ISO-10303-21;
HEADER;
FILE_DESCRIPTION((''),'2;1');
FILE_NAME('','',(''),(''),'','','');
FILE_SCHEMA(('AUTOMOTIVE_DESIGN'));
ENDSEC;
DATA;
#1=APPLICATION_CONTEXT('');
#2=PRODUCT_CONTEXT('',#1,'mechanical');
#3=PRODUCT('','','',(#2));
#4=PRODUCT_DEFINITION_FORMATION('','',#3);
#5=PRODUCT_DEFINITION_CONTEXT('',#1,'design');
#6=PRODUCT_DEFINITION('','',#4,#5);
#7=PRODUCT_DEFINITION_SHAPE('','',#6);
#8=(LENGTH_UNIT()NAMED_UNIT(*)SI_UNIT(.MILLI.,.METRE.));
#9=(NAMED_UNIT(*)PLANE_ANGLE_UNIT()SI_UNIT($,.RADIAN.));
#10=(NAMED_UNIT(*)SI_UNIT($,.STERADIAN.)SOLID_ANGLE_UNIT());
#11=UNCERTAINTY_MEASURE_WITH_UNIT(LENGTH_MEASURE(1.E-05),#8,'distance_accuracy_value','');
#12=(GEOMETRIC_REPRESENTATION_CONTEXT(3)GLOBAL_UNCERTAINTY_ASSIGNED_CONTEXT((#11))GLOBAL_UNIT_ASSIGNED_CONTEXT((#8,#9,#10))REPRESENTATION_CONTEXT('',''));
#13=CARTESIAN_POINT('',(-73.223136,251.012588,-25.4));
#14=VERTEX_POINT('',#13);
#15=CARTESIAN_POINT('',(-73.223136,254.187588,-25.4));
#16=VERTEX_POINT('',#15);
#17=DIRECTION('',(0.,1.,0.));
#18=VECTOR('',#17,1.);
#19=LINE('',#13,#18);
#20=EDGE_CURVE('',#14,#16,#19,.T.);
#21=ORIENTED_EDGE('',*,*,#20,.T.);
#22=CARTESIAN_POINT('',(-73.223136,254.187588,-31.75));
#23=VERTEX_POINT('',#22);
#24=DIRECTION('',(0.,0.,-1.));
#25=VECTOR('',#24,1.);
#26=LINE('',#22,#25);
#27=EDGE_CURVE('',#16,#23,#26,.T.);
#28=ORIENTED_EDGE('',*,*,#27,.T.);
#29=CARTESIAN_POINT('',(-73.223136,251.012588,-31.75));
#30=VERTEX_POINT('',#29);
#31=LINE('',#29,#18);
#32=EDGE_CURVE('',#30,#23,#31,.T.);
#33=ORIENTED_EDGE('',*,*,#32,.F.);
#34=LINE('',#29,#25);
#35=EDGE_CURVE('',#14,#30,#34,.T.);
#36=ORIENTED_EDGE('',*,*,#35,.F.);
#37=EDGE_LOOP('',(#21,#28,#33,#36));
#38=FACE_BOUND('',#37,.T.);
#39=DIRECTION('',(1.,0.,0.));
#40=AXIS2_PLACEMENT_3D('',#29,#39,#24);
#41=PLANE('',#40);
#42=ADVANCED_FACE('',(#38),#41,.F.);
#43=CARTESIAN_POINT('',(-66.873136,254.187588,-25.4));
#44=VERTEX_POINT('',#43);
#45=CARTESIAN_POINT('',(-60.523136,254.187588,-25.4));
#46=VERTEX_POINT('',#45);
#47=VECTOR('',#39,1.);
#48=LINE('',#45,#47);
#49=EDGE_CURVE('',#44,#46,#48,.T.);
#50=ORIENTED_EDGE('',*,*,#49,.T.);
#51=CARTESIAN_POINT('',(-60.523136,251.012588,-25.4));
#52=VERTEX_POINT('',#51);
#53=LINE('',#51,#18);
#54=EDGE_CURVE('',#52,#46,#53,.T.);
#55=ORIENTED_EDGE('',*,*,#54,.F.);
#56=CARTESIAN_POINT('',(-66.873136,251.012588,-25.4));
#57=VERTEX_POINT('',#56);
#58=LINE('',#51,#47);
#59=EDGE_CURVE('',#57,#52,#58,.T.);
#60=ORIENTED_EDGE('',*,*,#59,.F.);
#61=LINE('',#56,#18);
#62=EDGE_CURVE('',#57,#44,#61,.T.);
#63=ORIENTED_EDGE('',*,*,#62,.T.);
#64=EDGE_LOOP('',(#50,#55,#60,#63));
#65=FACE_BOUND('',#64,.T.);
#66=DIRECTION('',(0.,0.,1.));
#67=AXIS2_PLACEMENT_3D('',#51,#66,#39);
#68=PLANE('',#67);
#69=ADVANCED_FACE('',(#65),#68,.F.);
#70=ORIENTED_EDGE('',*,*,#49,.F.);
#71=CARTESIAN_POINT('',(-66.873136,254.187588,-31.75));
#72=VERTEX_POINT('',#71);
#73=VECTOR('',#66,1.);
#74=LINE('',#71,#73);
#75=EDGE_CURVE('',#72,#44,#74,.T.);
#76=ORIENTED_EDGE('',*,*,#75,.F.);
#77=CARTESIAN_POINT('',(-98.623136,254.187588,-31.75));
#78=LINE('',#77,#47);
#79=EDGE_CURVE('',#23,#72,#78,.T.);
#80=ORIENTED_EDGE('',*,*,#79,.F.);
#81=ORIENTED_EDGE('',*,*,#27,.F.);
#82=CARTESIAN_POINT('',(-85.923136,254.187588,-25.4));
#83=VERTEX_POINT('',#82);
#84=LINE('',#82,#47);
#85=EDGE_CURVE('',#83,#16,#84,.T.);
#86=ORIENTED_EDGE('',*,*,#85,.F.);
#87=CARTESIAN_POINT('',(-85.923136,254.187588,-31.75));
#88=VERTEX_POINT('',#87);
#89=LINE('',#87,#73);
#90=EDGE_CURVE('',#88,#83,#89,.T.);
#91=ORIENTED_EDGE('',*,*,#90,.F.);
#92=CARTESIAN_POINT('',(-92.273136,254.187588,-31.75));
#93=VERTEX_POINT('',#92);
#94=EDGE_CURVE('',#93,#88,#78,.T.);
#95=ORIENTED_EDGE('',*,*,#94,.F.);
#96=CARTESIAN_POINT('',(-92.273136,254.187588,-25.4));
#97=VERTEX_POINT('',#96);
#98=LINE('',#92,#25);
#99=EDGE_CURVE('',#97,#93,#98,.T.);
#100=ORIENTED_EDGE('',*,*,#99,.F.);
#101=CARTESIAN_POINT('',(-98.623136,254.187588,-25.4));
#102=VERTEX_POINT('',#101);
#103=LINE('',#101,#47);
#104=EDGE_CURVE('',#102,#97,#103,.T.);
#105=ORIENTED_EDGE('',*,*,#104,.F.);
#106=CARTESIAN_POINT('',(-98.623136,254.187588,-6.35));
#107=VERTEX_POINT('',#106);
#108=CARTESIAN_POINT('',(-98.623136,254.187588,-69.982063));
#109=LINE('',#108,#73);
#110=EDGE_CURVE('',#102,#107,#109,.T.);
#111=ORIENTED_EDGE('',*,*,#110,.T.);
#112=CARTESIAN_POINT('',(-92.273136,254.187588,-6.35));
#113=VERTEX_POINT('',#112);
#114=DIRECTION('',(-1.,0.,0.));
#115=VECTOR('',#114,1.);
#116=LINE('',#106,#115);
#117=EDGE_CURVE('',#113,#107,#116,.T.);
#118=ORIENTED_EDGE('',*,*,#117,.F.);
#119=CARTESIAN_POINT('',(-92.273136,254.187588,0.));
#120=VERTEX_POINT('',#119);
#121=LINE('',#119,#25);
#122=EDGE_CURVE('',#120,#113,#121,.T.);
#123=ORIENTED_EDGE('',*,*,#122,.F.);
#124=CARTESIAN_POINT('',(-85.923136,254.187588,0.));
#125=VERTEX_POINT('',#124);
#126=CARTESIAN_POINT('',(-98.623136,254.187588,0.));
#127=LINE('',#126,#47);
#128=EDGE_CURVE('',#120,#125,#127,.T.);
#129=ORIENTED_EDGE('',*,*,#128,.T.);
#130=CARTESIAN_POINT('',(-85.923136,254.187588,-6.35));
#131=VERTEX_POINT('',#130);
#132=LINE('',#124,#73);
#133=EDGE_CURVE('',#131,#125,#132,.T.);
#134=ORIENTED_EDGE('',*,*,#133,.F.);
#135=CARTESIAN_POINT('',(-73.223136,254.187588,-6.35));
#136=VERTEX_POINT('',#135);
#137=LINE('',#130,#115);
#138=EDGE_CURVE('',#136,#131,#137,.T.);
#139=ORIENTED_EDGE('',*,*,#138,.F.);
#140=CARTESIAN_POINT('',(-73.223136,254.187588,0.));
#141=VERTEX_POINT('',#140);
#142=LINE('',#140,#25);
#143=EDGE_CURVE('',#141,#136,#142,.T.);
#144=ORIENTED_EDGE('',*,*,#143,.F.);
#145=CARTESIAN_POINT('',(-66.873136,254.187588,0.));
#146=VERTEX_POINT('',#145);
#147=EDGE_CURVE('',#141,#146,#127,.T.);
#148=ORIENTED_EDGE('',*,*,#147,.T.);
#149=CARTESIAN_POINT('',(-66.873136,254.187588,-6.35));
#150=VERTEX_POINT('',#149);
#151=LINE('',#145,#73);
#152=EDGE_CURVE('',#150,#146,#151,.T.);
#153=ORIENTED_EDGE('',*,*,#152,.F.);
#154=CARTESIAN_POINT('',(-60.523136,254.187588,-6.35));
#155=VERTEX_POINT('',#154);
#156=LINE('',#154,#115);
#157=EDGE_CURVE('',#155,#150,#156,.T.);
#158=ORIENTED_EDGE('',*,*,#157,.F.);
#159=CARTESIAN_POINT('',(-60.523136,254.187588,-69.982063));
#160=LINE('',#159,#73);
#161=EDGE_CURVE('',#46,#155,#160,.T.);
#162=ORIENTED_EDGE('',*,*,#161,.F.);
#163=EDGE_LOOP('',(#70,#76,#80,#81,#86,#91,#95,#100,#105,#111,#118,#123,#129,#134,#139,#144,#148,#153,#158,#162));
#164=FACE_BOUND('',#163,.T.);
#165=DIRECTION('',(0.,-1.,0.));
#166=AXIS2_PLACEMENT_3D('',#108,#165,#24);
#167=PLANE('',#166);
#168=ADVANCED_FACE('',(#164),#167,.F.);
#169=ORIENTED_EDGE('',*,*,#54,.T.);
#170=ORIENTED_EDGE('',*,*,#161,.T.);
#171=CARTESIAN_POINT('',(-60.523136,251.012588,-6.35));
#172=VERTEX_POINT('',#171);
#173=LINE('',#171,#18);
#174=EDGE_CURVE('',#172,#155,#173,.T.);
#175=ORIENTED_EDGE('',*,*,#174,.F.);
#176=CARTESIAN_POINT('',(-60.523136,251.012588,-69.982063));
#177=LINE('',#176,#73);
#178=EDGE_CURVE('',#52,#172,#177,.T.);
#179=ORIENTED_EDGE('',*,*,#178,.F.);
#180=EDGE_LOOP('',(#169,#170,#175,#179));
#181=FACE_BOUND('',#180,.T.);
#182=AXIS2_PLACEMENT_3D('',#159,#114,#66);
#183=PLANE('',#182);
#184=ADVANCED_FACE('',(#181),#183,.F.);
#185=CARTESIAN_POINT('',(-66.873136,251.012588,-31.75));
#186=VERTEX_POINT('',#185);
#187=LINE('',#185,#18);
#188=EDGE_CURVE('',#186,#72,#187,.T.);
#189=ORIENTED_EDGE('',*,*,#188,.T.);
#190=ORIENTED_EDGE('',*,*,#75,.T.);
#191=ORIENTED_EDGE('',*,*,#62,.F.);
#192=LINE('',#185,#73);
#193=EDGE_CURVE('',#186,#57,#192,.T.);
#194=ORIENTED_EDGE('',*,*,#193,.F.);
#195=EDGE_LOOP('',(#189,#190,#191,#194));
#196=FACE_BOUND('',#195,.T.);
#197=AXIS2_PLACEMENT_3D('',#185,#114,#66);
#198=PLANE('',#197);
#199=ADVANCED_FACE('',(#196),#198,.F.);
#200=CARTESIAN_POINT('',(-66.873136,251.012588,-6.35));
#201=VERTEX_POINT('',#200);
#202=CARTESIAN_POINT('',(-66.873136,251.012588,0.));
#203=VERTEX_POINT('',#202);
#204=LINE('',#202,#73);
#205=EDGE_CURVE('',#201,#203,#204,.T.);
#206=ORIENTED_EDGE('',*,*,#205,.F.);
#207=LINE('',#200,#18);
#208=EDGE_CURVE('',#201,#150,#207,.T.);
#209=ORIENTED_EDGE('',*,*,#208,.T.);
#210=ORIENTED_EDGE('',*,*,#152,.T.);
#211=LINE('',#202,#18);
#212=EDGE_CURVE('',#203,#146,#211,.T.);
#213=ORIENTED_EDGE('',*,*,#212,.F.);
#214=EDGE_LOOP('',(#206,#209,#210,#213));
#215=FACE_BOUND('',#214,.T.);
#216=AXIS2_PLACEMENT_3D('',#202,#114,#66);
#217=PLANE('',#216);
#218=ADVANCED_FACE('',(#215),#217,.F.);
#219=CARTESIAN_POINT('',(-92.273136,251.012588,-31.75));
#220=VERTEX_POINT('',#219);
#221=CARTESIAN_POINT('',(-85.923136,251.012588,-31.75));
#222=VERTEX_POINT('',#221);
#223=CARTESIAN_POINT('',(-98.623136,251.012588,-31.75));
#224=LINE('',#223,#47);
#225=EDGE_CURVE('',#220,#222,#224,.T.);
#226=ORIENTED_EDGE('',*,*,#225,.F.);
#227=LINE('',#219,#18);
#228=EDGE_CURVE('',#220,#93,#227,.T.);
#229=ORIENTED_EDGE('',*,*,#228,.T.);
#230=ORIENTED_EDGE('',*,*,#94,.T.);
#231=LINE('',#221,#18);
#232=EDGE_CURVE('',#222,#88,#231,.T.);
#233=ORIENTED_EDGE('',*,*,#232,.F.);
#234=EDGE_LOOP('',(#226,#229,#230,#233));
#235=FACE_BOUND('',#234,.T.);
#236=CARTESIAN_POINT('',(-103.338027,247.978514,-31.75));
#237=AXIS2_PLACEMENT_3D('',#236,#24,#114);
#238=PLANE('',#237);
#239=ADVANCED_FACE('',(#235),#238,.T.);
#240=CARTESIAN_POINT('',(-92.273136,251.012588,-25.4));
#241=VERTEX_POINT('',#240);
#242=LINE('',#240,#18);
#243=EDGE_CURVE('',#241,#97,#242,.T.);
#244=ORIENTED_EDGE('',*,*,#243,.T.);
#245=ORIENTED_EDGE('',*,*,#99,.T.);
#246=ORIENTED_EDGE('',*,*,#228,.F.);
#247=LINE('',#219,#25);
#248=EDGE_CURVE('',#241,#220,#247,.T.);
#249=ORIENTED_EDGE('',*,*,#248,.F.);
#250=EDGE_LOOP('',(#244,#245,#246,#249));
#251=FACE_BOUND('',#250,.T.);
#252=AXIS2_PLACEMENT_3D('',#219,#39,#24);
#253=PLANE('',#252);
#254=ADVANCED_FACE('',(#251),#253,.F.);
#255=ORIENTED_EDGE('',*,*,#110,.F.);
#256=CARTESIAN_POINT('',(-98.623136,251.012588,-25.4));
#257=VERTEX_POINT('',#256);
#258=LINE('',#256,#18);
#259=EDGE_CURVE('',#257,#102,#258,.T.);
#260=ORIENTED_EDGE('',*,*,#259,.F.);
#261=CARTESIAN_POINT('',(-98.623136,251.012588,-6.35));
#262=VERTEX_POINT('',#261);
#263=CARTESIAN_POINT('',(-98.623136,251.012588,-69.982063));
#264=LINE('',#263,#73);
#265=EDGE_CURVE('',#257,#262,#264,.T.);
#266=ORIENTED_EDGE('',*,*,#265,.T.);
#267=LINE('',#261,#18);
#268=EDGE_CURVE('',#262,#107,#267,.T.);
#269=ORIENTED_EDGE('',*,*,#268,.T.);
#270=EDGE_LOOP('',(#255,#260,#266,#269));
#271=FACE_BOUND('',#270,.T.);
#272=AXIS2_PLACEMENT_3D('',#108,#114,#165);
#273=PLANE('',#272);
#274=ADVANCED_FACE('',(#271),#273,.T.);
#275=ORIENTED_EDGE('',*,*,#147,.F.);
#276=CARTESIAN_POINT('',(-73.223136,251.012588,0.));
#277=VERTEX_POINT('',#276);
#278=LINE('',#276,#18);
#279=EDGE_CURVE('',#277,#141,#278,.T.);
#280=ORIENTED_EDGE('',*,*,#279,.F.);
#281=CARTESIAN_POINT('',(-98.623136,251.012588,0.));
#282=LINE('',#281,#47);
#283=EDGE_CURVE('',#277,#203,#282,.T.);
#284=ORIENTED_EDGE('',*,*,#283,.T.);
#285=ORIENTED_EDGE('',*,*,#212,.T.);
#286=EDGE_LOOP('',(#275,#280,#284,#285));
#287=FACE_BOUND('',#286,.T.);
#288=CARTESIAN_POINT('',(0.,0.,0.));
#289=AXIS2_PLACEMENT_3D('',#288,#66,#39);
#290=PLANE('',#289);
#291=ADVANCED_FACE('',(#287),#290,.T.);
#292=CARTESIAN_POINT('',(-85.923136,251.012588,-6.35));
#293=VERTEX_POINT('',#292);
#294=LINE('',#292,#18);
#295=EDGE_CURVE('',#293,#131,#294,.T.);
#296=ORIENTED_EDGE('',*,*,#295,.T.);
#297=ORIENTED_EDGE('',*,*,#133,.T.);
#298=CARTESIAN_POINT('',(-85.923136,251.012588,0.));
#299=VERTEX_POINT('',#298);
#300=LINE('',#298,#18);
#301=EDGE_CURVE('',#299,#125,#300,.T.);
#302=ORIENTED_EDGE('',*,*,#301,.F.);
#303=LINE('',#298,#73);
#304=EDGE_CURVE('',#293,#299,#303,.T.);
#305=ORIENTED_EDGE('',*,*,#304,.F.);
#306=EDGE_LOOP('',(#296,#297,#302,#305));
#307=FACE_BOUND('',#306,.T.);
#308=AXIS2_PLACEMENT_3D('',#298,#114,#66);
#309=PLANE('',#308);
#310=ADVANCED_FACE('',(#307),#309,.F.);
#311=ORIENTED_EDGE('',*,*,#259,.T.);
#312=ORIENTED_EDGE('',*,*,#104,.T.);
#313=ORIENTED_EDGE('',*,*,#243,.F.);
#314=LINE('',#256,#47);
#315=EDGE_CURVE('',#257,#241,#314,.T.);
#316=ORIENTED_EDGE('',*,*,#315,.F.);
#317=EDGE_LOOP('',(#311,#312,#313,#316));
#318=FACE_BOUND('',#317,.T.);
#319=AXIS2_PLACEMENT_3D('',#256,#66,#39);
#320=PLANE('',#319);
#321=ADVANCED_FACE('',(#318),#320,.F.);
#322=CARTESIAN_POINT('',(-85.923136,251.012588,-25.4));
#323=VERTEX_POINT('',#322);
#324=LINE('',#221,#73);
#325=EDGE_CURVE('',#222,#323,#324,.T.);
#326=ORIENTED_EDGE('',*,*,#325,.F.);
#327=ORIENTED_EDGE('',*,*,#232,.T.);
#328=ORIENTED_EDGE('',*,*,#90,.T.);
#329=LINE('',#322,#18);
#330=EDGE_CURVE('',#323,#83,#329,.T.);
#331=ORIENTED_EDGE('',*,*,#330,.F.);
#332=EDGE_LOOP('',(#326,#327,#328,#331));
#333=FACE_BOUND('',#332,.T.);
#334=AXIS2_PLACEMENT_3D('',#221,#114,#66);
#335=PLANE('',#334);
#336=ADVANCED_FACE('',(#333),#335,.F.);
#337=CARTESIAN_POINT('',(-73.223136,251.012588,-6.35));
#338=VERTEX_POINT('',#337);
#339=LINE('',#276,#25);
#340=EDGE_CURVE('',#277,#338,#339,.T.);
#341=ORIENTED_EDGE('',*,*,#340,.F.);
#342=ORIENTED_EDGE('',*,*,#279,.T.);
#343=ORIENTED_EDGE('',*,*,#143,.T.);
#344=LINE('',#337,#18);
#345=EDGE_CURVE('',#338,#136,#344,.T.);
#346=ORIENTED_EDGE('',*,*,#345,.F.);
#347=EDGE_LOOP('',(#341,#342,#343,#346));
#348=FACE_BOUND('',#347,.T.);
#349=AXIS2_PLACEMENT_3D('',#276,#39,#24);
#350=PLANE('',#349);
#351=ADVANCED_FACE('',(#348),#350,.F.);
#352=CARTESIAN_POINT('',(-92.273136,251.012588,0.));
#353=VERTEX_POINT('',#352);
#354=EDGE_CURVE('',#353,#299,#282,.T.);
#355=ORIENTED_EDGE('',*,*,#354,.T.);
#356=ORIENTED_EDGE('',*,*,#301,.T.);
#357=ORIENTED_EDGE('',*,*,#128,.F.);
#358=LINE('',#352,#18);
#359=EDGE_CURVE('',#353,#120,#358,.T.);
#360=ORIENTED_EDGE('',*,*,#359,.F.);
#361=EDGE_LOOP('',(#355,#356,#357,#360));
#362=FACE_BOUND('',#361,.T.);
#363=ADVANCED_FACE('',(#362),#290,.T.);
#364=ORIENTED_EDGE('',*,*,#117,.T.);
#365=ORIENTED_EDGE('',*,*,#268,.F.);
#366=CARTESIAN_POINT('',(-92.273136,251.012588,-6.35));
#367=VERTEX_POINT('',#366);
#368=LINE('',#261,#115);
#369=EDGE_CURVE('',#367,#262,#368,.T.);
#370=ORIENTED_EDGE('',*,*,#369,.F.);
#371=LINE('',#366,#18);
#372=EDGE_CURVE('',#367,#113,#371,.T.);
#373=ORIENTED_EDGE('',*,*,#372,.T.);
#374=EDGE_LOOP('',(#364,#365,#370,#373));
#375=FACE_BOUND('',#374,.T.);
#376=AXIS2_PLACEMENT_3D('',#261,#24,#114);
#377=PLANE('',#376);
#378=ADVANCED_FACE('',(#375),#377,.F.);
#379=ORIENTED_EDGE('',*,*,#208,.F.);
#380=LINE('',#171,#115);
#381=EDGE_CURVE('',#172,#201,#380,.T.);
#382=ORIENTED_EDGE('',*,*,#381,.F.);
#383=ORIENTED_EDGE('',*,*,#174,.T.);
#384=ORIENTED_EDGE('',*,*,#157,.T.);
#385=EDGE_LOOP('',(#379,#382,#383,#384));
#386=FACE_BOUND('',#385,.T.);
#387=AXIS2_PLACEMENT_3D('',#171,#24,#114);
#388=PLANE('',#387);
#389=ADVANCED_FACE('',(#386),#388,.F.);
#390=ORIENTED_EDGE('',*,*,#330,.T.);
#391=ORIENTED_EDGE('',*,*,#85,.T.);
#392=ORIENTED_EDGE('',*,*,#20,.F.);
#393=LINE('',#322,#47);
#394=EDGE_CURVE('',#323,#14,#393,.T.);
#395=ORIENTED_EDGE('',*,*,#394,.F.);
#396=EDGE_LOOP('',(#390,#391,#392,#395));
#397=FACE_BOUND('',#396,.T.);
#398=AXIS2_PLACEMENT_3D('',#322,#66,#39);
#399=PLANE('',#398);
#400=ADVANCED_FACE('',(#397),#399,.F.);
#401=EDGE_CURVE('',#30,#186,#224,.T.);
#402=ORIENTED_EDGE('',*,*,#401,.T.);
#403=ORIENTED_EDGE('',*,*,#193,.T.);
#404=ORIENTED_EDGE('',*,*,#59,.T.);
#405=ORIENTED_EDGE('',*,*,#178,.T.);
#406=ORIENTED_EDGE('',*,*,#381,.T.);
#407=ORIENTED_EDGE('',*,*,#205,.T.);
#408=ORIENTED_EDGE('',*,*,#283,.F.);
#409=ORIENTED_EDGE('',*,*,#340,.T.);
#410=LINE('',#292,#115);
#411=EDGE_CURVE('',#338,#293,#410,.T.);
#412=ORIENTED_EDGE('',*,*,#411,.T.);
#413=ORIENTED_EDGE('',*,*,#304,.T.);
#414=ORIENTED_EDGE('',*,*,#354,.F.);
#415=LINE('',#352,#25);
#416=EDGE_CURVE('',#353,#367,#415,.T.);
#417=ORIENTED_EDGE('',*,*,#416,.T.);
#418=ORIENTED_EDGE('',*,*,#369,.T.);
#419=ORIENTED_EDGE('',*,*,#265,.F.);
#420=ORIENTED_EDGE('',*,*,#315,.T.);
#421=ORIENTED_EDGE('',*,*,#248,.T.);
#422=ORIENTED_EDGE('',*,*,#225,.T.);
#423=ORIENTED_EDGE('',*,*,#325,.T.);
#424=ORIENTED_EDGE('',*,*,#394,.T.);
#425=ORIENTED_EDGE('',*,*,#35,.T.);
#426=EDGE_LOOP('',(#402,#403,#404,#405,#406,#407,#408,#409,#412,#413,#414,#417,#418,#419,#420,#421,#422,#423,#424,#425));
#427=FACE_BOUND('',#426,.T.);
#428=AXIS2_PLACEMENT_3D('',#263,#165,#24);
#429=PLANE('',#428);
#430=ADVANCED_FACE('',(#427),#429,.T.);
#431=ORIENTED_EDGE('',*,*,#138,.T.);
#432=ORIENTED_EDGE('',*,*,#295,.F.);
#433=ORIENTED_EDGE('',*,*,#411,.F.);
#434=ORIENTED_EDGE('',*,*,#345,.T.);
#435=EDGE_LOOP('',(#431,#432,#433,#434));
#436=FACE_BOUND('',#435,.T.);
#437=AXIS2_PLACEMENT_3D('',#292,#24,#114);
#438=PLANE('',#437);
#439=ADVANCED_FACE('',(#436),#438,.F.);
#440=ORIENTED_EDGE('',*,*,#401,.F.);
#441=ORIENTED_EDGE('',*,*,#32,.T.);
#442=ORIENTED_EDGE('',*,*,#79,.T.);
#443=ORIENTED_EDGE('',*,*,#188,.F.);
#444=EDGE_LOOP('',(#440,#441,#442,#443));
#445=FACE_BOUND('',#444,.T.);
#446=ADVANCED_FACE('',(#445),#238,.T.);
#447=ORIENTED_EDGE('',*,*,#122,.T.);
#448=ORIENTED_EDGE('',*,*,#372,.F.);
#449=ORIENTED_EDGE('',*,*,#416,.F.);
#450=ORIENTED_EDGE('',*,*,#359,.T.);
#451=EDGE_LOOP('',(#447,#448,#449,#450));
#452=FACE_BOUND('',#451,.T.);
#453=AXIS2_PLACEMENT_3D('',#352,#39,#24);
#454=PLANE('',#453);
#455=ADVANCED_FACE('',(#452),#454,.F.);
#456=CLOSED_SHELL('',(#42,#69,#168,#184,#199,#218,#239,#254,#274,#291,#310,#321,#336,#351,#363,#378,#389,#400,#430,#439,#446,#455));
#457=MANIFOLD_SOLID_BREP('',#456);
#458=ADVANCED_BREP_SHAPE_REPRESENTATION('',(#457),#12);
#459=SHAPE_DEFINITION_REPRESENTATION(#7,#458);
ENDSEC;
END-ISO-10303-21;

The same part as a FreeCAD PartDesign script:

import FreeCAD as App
import Part
import Sketcher
from FreeCAD import Vector
Q = App.Units.Quantity


def add_polygon(sketch, points):
    """Adds a closed chain of lines whose ends are joined by coincident constraints."""
    first, n = sketch.GeometryCount, len(points)
    for a, b in zip(points, points[1:] + points[:1]):
        sketch.addGeometry(Part.LineSegment(App.Vector(*a, 0), App.Vector(*b, 0)), False)
    for i in range(n):
        sketch.addConstraint(Sketcher.Constraint("Coincident", first + i, 2, first + (i + 1) % n, 1))

doc = App.newDocument("Part")
body = doc.addObject("PartDesign::Body", "Body")

# Sketch on XY plane
sketch1 = body.newObject("Sketcher::SketchObject", "Sketch")
sketch1.AttachmentSupport = (doc.getObject("XY_Plane"), [""])
sketch1.MapMode = "FlatFace"
add_polygon(sketch1, [(-98.623136, 254.187588), (-98.623136, 251.012588), (-60.523136, 251.012588), (-60.523136, 254.187588)])  # lines 0-3
sketch1.addConstraint(Sketcher.Constraint("Vertical", 0))
sketch1.addConstraint(Sketcher.Constraint("Horizontal", 1))
sketch1.addConstraint(Sketcher.Constraint("Vertical", 2))
sketch1.addConstraint(Sketcher.Constraint("Horizontal", 3))
sketch1.addConstraint(Sketcher.Constraint("DistanceX", 1, 1, 1, 2, Q("1.5 in")))
sketch1.addConstraint(Sketcher.Constraint("DistanceY", 0, 2, 0, 1, Q("0.125 in")))
sketch1.addConstraint(Sketcher.Constraint("DistanceY", -1, 1, 0, 2, 251.012588))
sketch1.addConstraint(Sketcher.Constraint("DistanceX", 0, 2, -1, 1, 98.623136))
pad1 = body.newObject("PartDesign::Pad", "Pad")
pad1.Profile = sketch1
pad1.Length = Q("1.25 in")
pad1.Reversed = True

# Sketch on XZ plane
sketch2 = body.newObject("Sketcher::SketchObject", "Sketch001")
sketch2.AttachmentSupport = (doc.getObject("XZ_Plane"), [""])
sketch2.MapMode = "FlatFace"
sketch2.AttachmentOffset = App.Placement(Vector(0, 0, -254.187588), App.Rotation())
add_polygon(sketch2, [(-98.623136, -31.75), (-98.623136, -25.4), (-92.273136, -25.4), (-92.273136, -31.75)])  # lines 0-3
add_polygon(sketch2, [(-85.923136, -31.75), (-85.923136, -25.4), (-73.223136, -25.4), (-73.223136, -31.75)])  # lines 4-7
add_polygon(sketch2, [(-66.873136, -31.75), (-66.873136, -25.4), (-60.523136, -25.4), (-60.523136, -31.75)])  # lines 8-11
add_polygon(sketch2, [(-98.623136, -6.35), (-98.623136, 0), (-92.273136, 0), (-92.273136, -6.35)])  # lines 12-15
add_polygon(sketch2, [(-85.923136, -6.35), (-85.923136, 0), (-73.223136, 0), (-73.223136, -6.35)])  # lines 16-19
add_polygon(sketch2, [(-66.873136, -6.35), (-66.873136, 0), (-60.523136, 0), (-60.523136, -6.35)])  # lines 20-23
sketch2.addConstraint(Sketcher.Constraint("Vertical", 0))
sketch2.addConstraint(Sketcher.Constraint("Horizontal", 1))
sketch2.addConstraint(Sketcher.Constraint("Vertical", 2))
sketch2.addConstraint(Sketcher.Constraint("Horizontal", 3))
sketch2.addConstraint(Sketcher.Constraint("Vertical", 4))
sketch2.addConstraint(Sketcher.Constraint("Horizontal", 5))
sketch2.addConstraint(Sketcher.Constraint("Vertical", 6))
sketch2.addConstraint(Sketcher.Constraint("Horizontal", 7))
sketch2.addConstraint(Sketcher.Constraint("Vertical", 8))
sketch2.addConstraint(Sketcher.Constraint("Horizontal", 9))
sketch2.addConstraint(Sketcher.Constraint("Vertical", 10))
sketch2.addConstraint(Sketcher.Constraint("Horizontal", 11))
sketch2.addConstraint(Sketcher.Constraint("Vertical", 12))
sketch2.addConstraint(Sketcher.Constraint("Horizontal", 13))
sketch2.addConstraint(Sketcher.Constraint("Vertical", 14))
sketch2.addConstraint(Sketcher.Constraint("Horizontal", 15))
sketch2.addConstraint(Sketcher.Constraint("Vertical", 16))
sketch2.addConstraint(Sketcher.Constraint("Horizontal", 17))
sketch2.addConstraint(Sketcher.Constraint("Vertical", 18))
sketch2.addConstraint(Sketcher.Constraint("Horizontal", 19))
sketch2.addConstraint(Sketcher.Constraint("Vertical", 20))
sketch2.addConstraint(Sketcher.Constraint("Horizontal", 21))
sketch2.addConstraint(Sketcher.Constraint("Vertical", 22))
sketch2.addConstraint(Sketcher.Constraint("Horizontal", 23))
sketch2.addConstraint(Sketcher.Constraint("PointOnObject", 12, 2, -1))
sketch2.addConstraint(Sketcher.Constraint("PointOnObject", 16, 2, -1))
sketch2.addConstraint(Sketcher.Constraint("PointOnObject", 20, 2, -1))
sketch2.addConstraint(Sketcher.Constraint("Horizontal", 1, 2, 4, 2))
sketch2.addConstraint(Sketcher.Constraint("Horizontal", 3, 2, 6, 2))
sketch2.addConstraint(Sketcher.Constraint("Horizontal", 5, 2, 8, 2))
sketch2.addConstraint(Sketcher.Constraint("Horizontal", 7, 2, 10, 2))
sketch2.addConstraint(Sketcher.Constraint("Horizontal", 15, 2, 18, 2))
sketch2.addConstraint(Sketcher.Constraint("Horizontal", 19, 2, 22, 2))
sketch2.addConstraint(Sketcher.Constraint("Vertical", 3, 2, 12, 2))
sketch2.addConstraint(Sketcher.Constraint("Vertical", 2, 2, 13, 2))
sketch2.addConstraint(Sketcher.Constraint("Vertical", 7, 2, 16, 2))
sketch2.addConstraint(Sketcher.Constraint("Vertical", 6, 2, 17, 2))
sketch2.addConstraint(Sketcher.Constraint("Vertical", 11, 2, 20, 2))
sketch2.addConstraint(Sketcher.Constraint("Vertical", 10, 2, 21, 2))
sketch2.addConstraint(Sketcher.Constraint("Equal", 3, 9))
sketch2.addConstraint(Sketcher.Constraint("Equal", 23, 0))
sketch2.addConstraint(Sketcher.Constraint("Equal", 10, 12))
sketch2.addConstraint(Sketcher.Constraint("DistanceX", 5, 1, 5, 2, Q("0.5 in")))
sketch2.addConstraint(Sketcher.Constraint("DistanceY", 0, 2, -1, 1, Q("1 in")))
sketch2.addConstraint(Sketcher.Constraint("DistanceX", 0, 2, 5, 2, Q("1 in")))
sketch2.addConstraint(Sketcher.Constraint("DistanceX", 1, 2, 8, 2, Q("1 in")))
sketch2.addConstraint(Sketcher.Constraint("DistanceX", 4, 2, 9, 2, Q("1 in")))
sketch2.addConstraint(Sketcher.Constraint("DistanceX", 0, 2, -1, 1, 98.623136))
pocket1 = body.newObject("PartDesign::Pocket", "Pocket")
pocket1.Profile = sketch2
pocket1.Type = "ThroughAll"
pocket1.Reversed = True

doc.recompute()
